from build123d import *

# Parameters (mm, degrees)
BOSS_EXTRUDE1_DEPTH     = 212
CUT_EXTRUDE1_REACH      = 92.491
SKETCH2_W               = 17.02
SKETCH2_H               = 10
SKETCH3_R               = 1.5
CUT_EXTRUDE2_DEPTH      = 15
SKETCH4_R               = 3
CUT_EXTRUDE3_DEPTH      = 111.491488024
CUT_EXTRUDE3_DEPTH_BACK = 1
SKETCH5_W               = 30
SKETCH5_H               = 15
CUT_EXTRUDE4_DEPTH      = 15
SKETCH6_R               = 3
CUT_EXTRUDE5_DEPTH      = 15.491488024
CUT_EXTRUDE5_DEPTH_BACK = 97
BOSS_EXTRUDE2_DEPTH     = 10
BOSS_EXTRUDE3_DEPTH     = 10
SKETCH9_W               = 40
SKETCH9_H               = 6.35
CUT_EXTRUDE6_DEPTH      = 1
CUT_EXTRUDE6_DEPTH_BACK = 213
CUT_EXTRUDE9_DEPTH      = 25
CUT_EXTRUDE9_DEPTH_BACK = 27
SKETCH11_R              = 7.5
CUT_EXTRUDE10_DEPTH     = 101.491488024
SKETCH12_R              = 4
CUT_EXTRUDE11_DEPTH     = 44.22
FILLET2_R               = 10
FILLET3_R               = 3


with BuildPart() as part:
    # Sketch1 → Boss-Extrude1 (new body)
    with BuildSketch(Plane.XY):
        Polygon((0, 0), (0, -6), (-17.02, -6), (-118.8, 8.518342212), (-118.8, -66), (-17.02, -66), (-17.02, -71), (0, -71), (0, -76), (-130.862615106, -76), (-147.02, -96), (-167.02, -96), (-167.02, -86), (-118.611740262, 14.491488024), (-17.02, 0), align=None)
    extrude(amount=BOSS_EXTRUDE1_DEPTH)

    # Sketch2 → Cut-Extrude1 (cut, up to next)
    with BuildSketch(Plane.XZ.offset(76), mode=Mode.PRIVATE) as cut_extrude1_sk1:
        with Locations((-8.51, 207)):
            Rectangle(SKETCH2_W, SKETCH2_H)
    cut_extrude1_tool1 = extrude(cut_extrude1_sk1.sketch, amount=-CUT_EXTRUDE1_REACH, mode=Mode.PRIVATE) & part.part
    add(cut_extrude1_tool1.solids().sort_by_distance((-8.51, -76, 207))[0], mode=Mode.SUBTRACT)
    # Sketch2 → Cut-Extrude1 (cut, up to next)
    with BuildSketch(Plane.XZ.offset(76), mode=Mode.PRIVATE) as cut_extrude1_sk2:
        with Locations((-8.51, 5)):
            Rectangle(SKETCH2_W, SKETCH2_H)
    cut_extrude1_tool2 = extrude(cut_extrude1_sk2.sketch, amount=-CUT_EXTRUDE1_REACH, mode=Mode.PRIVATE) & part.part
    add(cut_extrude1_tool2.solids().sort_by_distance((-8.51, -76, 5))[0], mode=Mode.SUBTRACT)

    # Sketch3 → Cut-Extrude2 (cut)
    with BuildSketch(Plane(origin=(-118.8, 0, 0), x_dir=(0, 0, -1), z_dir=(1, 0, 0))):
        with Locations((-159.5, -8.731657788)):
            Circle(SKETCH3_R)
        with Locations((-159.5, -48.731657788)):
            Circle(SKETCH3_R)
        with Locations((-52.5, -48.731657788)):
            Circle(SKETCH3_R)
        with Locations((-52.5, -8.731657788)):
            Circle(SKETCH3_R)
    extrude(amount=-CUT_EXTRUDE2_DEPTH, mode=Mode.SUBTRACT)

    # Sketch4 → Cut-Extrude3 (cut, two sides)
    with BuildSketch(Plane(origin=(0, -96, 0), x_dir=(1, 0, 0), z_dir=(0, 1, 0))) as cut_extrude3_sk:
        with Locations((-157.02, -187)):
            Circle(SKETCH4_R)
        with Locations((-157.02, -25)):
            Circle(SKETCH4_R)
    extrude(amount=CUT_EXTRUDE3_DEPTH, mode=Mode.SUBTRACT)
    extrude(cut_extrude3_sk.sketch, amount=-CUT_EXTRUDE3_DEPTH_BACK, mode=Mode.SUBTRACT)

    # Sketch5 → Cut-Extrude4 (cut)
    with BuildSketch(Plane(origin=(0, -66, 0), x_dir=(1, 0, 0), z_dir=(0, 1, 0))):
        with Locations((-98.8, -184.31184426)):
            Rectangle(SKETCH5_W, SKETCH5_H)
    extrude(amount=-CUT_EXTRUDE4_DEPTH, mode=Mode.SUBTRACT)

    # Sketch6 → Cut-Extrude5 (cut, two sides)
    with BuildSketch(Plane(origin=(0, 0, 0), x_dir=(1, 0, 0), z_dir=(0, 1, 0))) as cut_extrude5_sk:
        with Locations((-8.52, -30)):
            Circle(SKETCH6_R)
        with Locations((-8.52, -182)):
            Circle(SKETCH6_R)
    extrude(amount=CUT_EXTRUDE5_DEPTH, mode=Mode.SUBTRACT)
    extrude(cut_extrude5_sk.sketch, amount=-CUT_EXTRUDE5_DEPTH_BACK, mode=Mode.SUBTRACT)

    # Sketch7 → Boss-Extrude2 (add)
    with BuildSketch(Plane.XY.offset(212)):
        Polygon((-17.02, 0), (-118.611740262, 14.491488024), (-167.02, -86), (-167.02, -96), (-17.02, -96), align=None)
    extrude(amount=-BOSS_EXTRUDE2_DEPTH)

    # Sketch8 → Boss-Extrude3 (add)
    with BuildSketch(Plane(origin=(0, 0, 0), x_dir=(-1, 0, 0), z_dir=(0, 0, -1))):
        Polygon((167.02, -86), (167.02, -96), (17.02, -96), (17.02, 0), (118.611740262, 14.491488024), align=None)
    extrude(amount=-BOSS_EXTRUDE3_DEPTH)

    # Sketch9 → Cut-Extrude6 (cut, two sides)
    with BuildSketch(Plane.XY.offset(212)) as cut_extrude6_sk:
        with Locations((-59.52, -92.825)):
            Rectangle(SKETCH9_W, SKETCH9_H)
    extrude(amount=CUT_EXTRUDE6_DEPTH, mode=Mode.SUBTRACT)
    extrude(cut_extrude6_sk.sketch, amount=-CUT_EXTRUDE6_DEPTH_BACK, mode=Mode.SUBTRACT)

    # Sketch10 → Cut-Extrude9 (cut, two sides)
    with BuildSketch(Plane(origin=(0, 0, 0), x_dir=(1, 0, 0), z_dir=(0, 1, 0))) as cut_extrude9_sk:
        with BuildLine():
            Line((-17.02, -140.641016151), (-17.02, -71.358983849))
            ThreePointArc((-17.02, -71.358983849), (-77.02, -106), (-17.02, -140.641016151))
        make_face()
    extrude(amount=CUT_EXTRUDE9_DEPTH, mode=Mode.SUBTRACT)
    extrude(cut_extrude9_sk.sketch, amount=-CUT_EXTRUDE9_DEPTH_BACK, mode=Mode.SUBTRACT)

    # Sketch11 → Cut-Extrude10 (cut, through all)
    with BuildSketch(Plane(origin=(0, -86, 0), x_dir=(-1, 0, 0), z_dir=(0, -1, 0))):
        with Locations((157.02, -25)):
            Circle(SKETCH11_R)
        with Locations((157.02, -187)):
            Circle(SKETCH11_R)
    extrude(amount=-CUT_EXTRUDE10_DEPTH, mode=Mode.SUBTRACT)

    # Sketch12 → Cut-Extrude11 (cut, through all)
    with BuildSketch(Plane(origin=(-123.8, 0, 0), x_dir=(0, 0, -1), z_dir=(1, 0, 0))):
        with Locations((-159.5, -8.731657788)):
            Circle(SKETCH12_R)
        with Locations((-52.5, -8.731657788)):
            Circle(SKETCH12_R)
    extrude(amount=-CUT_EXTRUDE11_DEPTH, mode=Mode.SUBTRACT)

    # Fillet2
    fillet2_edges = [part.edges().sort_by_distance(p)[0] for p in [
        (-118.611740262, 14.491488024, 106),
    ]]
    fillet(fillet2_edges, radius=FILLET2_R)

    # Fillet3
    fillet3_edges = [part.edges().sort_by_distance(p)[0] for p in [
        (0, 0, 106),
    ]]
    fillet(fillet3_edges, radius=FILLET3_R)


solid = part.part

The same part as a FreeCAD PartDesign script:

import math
import FreeCAD as App
import Part
import Sketcher
Q = App.Units.Quantity


def edges_at(feature, points):
    """Names of the edges that pass closest to the given points."""
    edges = feature.Shape.Edges
    near = lambda p: min(range(len(edges)), key=lambda i: edges[i].distToShape(Part.Vertex(*p))[0])
    return sorted({f"Edge{near(p) + 1}" for p in points})

doc = App.newDocument("Part")
body = doc.addObject("PartDesign::Body", "Body")

# Sketch on XY plane
sketch1 = body.newObject("Sketcher::SketchObject", "Sketch")
sketch1.AttachmentSupport = (doc.getObject("XY_Plane"), [""])
sketch1.MapMode = "FlatFace"
sketch1.addGeometry([
    Part.LineSegment(App.Vector(0, -6, 0), App.Vector(0, 0, 0)),  # 0
    Part.LineSegment(App.Vector(0, 0, 0), App.Vector(-17, 0, 0)),  # 1
    Part.LineSegment(App.Vector(-17, 0, 0), App.Vector(-119, 14, 0)),  # 2
    Part.LineSegment(App.Vector(-119, 14, 0), App.Vector(-167, -86, 0)),  # 3
    Part.LineSegment(App.Vector(-167, -86, 0), App.Vector(-167, -96, 0)),  # 4
    Part.LineSegment(App.Vector(-167, -96, 0), App.Vector(-147, -96, 0)),  # 5
    Part.LineSegment(App.Vector(-147, -96, 0), App.Vector(-131, -76, 0)),  # 6
    Part.LineSegment(App.Vector(-131, -76, 0), App.Vector(0, -76, 0)),  # 7
    Part.LineSegment(App.Vector(0, -76, 0), App.Vector(0, -71, 0)),  # 8
    Part.LineSegment(App.Vector(0, -71, 0), App.Vector(-17, -71, 0)),  # 9
    Part.LineSegment(App.Vector(-17, -71, 0), App.Vector(-17, -66, 0)),  # 10
    Part.LineSegment(App.Vector(-17, -66, 0), App.Vector(-119, -66, 0)),  # 11
    Part.LineSegment(App.Vector(-119, -66, 0), App.Vector(-119, 9, 0)),  # 12
    Part.LineSegment(App.Vector(-119, 9, 0), App.Vector(-17, -6, 0)),  # 13
    Part.LineSegment(App.Vector(-17, -6, 0), App.Vector(0, -6, 0)),  # 14
], False)
sketch1.addConstraint([
    Sketcher.Constraint("Coincident", 0, 2, 1, 1),
    Sketcher.Constraint("Coincident", 1, 2, 2, 1),
    Sketcher.Constraint("Coincident", 2, 2, 3, 1),
    Sketcher.Constraint("Coincident", 3, 2, 4, 1),
    Sketcher.Constraint("Coincident", 4, 2, 5, 1),
    Sketcher.Constraint("Coincident", 5, 2, 6, 1),
    Sketcher.Constraint("Coincident", 6, 2, 7, 1),
    Sketcher.Constraint("Coincident", 7, 2, 8, 1),
    Sketcher.Constraint("Coincident", 8, 2, 9, 1),
    Sketcher.Constraint("Coincident", 9, 2, 10, 1),
    Sketcher.Constraint("Coincident", 10, 2, 11, 1),
    Sketcher.Constraint("Coincident", 11, 2, 12, 1),
    Sketcher.Constraint("Coincident", 12, 2, 13, 1),
    Sketcher.Constraint("Coincident", 13, 2, 14, 1),
    Sketcher.Constraint("Coincident", 14, 2, 0, 1),
    Sketcher.Constraint("Vertical", 0),
    Sketcher.Constraint("Horizontal", 1),
    Sketcher.Constraint("Vertical", 4),
    Sketcher.Constraint("Horizontal", 5),
    Sketcher.Constraint("Horizontal", 7),
    Sketcher.Constraint("Vertical", 8),
    Sketcher.Constraint("Horizontal", 9),
    Sketcher.Constraint("Vertical", 10),
    Sketcher.Constraint("Horizontal", 11),
    Sketcher.Constraint("Vertical", 12),
    Sketcher.Constraint("Horizontal", 14),
    Sketcher.Constraint("Coincident", 0, 2, -1, 1),
    Sketcher.Constraint("PointOnObject", 7, 2, -2),
    Sketcher.Constraint("Parallel", 2, 13),
    Sketcher.Constraint("Vertical", 1, 2, 9, 2),
    Sketcher.Constraint("Vertical", 10, 2, 13, 2),
    Sketcher.Constraint("Equal", 8, 10),
    Sketcher.Constraint("DistanceX", 5, 1, 5, 2, Q("20 mm")),
    Sketcher.Constraint("DistanceY", 0, 1, 0, 2, Q("6 mm")),
    Sketcher.Constraint("DistanceY", 4, 2, 4, 1, Q("10 mm")),
    Sketcher.Constraint("DistanceY", 8, 1, 8, 2, Q("5 mm")),
    Sketcher.Constraint("DistanceY", 3, 2, -1, 1, Q("86 mm")),
    Sketcher.Constraint("DistanceY", 6, 2, -1, 1, Q("76 mm")),
    Sketcher.Constraint("DistanceX", 3, 2, 1, 2, Q("150 mm")),
    Sketcher.Constraint("DistanceX", 1, 2, 1, 1, Q("17.02 mm")),
    Sketcher.Constraint("DistanceX", 11, 2, 11, 1, Q("101.78 mm")),
    Sketcher.Constraint("Distance", 2, Q("102.6201 mm")),
    Sketcher.Constraint("Distance", 3, Q("111.54326 mm")),
    Sketcher.Constraint("Distance", 6, Q("25.711108 mm")),
])
pad1 = body.newObject("PartDesign::Pad", "Pad")
pad1.Profile = sketch1
pad1.Length = 212

# Sketch on XZ plane
sketch2 = body.newObject("Sketcher::SketchObject", "Sketch001")
sketch2.AttachmentSupport = (doc.getObject("XZ_Plane"), [""])
sketch2.MapMode = "FlatFace"
sketch2.AttachmentOffset = App.Placement(App.Vector(0, 0, 76), App.Rotation())
sketch2.addGeometry([
    Part.LineSegment(App.Vector(-17, 212, 0), App.Vector(-17, 202, 0)),
    Part.LineSegment(App.Vector(-17, 202, 0), App.Vector(0, 202, 0)),
    Part.LineSegment(App.Vector(0, 202, 0), App.Vector(0, 212, 0)),
    Part.LineSegment(App.Vector(0, 212, 0), App.Vector(-17, 212, 0)),
], False)
sketch2.addConstraint([
    Sketcher.Constraint("Coincident", 0, 2, 1, 1),
    Sketcher.Constraint("Coincident", 1, 2, 2, 1),
    Sketcher.Constraint("Coincident", 2, 2, 3, 1),
    Sketcher.Constraint("Coincident", 3, 2, 0, 1),
    Sketcher.Constraint("Vertical", 0),
    Sketcher.Constraint("Horizontal", 1),
    Sketcher.Constraint("Vertical", 2),
    Sketcher.Constraint("Horizontal", 3),
    Sketcher.Constraint("PointOnObject", 1, 2, -2),
    Sketcher.Constraint("DistanceY", 0, 2, 0, 1, Q("10 mm")),
    Sketcher.Constraint("DistanceY", -1, 1, 0, 2, Q("202 mm")),
    Sketcher.Constraint("DistanceX", 1, 1, 1, 2, Q("17.02 mm")),
])
pocket1 = body.newObject("PartDesign::Pocket", "Pocket")
pocket1.Profile = sketch2
pocket1.Type = "UpToFirst"

# Sketch on XZ plane
sketch3 = body.newObject("Sketcher::SketchObject", "Sketch002")
sketch3.AttachmentSupport = (doc.getObject("XZ_Plane"), [""])
sketch3.MapMode = "FlatFace"
sketch3.AttachmentOffset = App.Placement(App.Vector(0, 0, 76), App.Rotation())
sketch3.addGeometry([
    Part.LineSegment(App.Vector(-17, 10, 0), App.Vector(-17, 0, 0)),
    Part.LineSegment(App.Vector(-17, 0, 0), App.Vector(0, 0, 0)),
    Part.LineSegment(App.Vector(0, 0, 0), App.Vector(0, 10, 0)),
    Part.LineSegment(App.Vector(0, 10, 0), App.Vector(-17, 10, 0)),
], False)
sketch3.addConstraint([
    Sketcher.Constraint("Coincident", 0, 2, 1, 1),
    Sketcher.Constraint("Coincident", 1, 2, 2, 1),
    Sketcher.Constraint("Coincident", 2, 2, 3, 1),
    Sketcher.Constraint("Coincident", 3, 2, 0, 1),
    Sketcher.Constraint("Vertical", 0),
    Sketcher.Constraint("Horizontal", 1),
    Sketcher.Constraint("Vertical", 2),
    Sketcher.Constraint("Horizontal", 3),
    Sketcher.Constraint("Coincident", 1, 2, -1, 1),
    Sketcher.Constraint("DistanceY", 0, 2, 0, 1, Q("10 mm")),
    Sketcher.Constraint("DistanceX", 1, 1, 1, 2, Q("17.02 mm")),
])
pocket2 = body.newObject("PartDesign::Pocket", "Pocket001")
pocket2.Profile = sketch3
pocket2.Type = "UpToFirst"

# Sketch on YZ plane
sketch4 = body.newObject("Sketcher::SketchObject", "Sketch003")
sketch4.AttachmentSupport = (doc.getObject("YZ_Plane"), [""])
sketch4.MapMode = "FlatFace"
sketch4.AttachmentOffset = App.Placement(App.Vector(0, 0, -118.8), App.Rotation())
sketch4.addGeometry([
    Part.Circle(App.Vector(-8.7, 159.5, 0), App.Vector(0, 0, 1), 1.5),
    Part.Circle(App.Vector(-48.7, 159.5, 0), App.Vector(0, 0, 1), 1.5),
    Part.Circle(App.Vector(-48.7, 52.5, 0), App.Vector(0, 0, 1), 1.5),
    Part.Circle(App.Vector(-8.7, 52.5, 0), App.Vector(0, 0, 1), 1.5),
], False)
sketch4.addConstraint([
    Sketcher.Constraint("Equal", 0, 1),
    Sketcher.Constraint("Equal", 1, 2),
    Sketcher.Constraint("Equal", 2, 3),
    Sketcher.Constraint("Horizontal", 0, 3, 1, 3),
    Sketcher.Constraint("Horizontal", 2, 3, 3, 3),
    Sketcher.Constraint("Vertical", 1, 3, 2, 3),
    Sketcher.Constraint("Vertical", 0, 3, 3, 3),
    Sketcher.Constraint("Diameter", 0, Q("3 mm")),
    Sketcher.Constraint("DistanceX", 1, 3, 0, 3, Q("40 mm")),
    Sketcher.Constraint("DistanceY", 2, 3, 1, 3, Q("107 mm")),
    Sketcher.Constraint("DistanceY", -1, 1, 0, 3, Q("159.5 mm")),
    Sketcher.Constraint("DistanceX", 0, 3, -1, 1, Q("8.731658 mm")),
])
pocket3 = body.newObject("PartDesign::Pocket", "Pocket002")
pocket3.Profile = sketch4
pocket3.Length = 15

# Sketch on XZ plane
sketch5 = body.newObject("Sketcher::SketchObject", "Sketch004")
sketch5.AttachmentSupport = (doc.getObject("XZ_Plane"), [""])
sketch5.MapMode = "FlatFace"
sketch5.AttachmentOffset = App.Placement(App.Vector(0, 0, 96), App.Rotation())
sketch5.addGeometry([
    Part.Circle(App.Vector(-157, 187, 0), App.Vector(0, 0, 1), 3),
    Part.Circle(App.Vector(-157, 25, 0), App.Vector(0, 0, 1), 3),
], False)
sketch5.addConstraint([
    Sketcher.Constraint("Equal", 0, 1),
    Sketcher.Constraint("Vertical", 0, 3, 1, 3),
    Sketcher.Constraint("Diameter", 0, Q("6 mm")),
    Sketcher.Constraint("DistanceY", -1, 1, 0, 3, Q("187 mm")),
    Sketcher.Constraint("DistanceY", -1, 1, 1, 3, Q("25 mm")),
    Sketcher.Constraint("DistanceX", 0, 3, -1, 1, Q("157.02 mm")),
])
pocket4 = body.newObject("PartDesign::Pocket", "Pocket003")
pocket4.Profile = sketch5
pocket4.Type = "ThroughAll"
pocket4.Midplane = True

# Sketch on XZ plane
sketch6 = body.newObject("Sketcher::SketchObject", "Sketch005")
sketch6.AttachmentSupport = (doc.getObject("XZ_Plane"), [""])
sketch6.MapMode = "FlatFace"
sketch6.AttachmentOffset = App.Placement(App.Vector(0, 0, 66), App.Rotation())
sketch6.addGeometry([
    Part.LineSegment(App.Vector(-114, 177, 0), App.Vector(-114, 192, 0)),
    Part.LineSegment(App.Vector(-114, 192, 0), App.Vector(-84, 192, 0)),
    Part.LineSegment(App.Vector(-84, 192, 0), App.Vector(-84, 177, 0)),
    Part.LineSegment(App.Vector(-84, 177, 0), App.Vector(-114, 177, 0)),
], False)
sketch6.addConstraint([
    Sketcher.Constraint("Coincident", 0, 2, 1, 1),
    Sketcher.Constraint("Coincident", 1, 2, 2, 1),
    Sketcher.Constraint("Coincident", 2, 2, 3, 1),
    Sketcher.Constraint("Coincident", 3, 2, 0, 1),
    Sketcher.Constraint("Vertical", 0),
    Sketcher.Constraint("Horizontal", 1),
    Sketcher.Constraint("Vertical", 2),
    Sketcher.Constraint("Horizontal", 3),
    Sketcher.Constraint("DistanceX", 1, 1, 1, 2, Q("30 mm")),
    Sketcher.Constraint("DistanceY", 0, 1, 0, 2, Q("15 mm")),
    Sketcher.Constraint("DistanceX", 0, 2, -1, 1, Q("113.8 mm")),
    Sketcher.Constraint("DistanceY", -1, 1, 0, 2, Q("191.811844 mm")),
])
pocket5 = body.newObject("PartDesign::Pocket", "Pocket004")
pocket5.Profile = sketch6
pocket5.Length = 15
pocket5.Reversed = True

# Sketch on XZ plane
sketch7 = body.newObject("Sketcher::SketchObject", "Sketch006")
sketch7.AttachmentSupport = (doc.getObject("XZ_Plane"), [""])
sketch7.MapMode = "FlatFace"
sketch7.addGeometry([
    Part.Circle(App.Vector(-8.5, 30, 0), App.Vector(0, 0, 1), 3),
    Part.Circle(App.Vector(-8.5, 182, 0), App.Vector(0, 0, 1), 3),
], False)
sketch7.addConstraint([
    Sketcher.Constraint("Equal", 0, 1),
    Sketcher.Constraint("Vertical", 0, 3, 1, 3),
    Sketcher.Constraint("Diameter", 0, Q("6 mm")),
    Sketcher.Constraint("DistanceY", -1, 1, 0, 3, Q("30 mm")),
    Sketcher.Constraint("DistanceY", -1, 1, 1, 3, Q("182 mm")),
    Sketcher.Constraint("DistanceX", 0, 3, -1, 1, Q("8.52 mm")),
])
pocket6 = body.newObject("PartDesign::Pocket", "Pocket005")
pocket6.Profile = sketch7
pocket6.Type = "ThroughAll"
pocket6.Midplane = True

# Sketch on XY plane
sketch8 = body.newObject("Sketcher::SketchObject", "Sketch007")
sketch8.AttachmentSupport = (doc.getObject("XY_Plane"), [""])
sketch8.MapMode = "FlatFace"
sketch8.AttachmentOffset = App.Placement(App.Vector(0, 0, 212), App.Rotation())
sketch8.addGeometry([
    Part.LineSegment(App.Vector(-17, 0, 0), App.Vector(-119, 14, 0)),  # 0
    Part.LineSegment(App.Vector(-119, 14, 0), App.Vector(-167, -86, 0)),  # 1
    Part.LineSegment(App.Vector(-167, -86, 0), App.Vector(-167, -96, 0)),  # 2
    Part.LineSegment(App.Vector(-167, -96, 0), App.Vector(-17, -96, 0)),  # 3
    Part.LineSegment(App.Vector(-17, -96, 0), App.Vector(-17, 0, 0)),  # 4
], False)
sketch8.addConstraint([
    Sketcher.Constraint("Coincident", 0, 2, 1, 1),
    Sketcher.Constraint("Coincident", 1, 2, 2, 1),
    Sketcher.Constraint("Coincident", 2, 2, 3, 1),
    Sketcher.Constraint("Coincident", 3, 2, 4, 1),
    Sketcher.Constraint("Coincident", 4, 2, 0, 1),
    Sketcher.Constraint("Vertical", 2),
    Sketcher.Constraint("Horizontal", 3),
    Sketcher.Constraint("Vertical", 4),
    Sketcher.Constraint("PointOnObject", 4, 2, -1),
    Sketcher.Constraint("DistanceX", 3, 1, 3, 2, Q("150 mm")),
    Sketcher.Constraint("DistanceY", 2, 2, 2, 1, Q("10 mm")),
    Sketcher.Constraint("DistanceY", 4, 1, 4, 2, Q("96 mm")),
    Sketcher.Constraint("DistanceX", 1, 2, -1, 1, Q("167.02 mm")),
    Sketcher.Constraint("Distance", 0, Q("102.6201 mm")),
    Sketcher.Constraint("Distance", 1, Q("111.54326 mm")),
])
pad2 = body.newObject("PartDesign::Pad", "Pad001")
pad2.Profile = sketch8
pad2.Length = 10
pad2.Reversed = True

# Sketch on XY plane
sketch9 = body.newObject("Sketcher::SketchObject", "Sketch008")
sketch9.AttachmentSupport = (doc.getObject("XY_Plane"), [""])
sketch9.MapMode = "FlatFace"
sketch9.addGeometry([
    Part.LineSegment(App.Vector(-167, -96, 0), App.Vector(-167, -86, 0)),  # 0
    Part.LineSegment(App.Vector(-167, -86, 0), App.Vector(-119, 14, 0)),  # 1
    Part.LineSegment(App.Vector(-119, 14, 0), App.Vector(-17, 0, 0)),  # 2
    Part.LineSegment(App.Vector(-17, 0, 0), App.Vector(-17, -96, 0)),  # 3
    Part.LineSegment(App.Vector(-17, -96, 0), App.Vector(-167, -96, 0)),  # 4
], False)
sketch9.addConstraint([
    Sketcher.Constraint("Coincident", 0, 2, 1, 1),
    Sketcher.Constraint("Coincident", 1, 2, 2, 1),
    Sketcher.Constraint("Coincident", 2, 2, 3, 1),
    Sketcher.Constraint("Coincident", 3, 2, 4, 1),
    Sketcher.Constraint("Coincident", 4, 2, 0, 1),
    Sketcher.Constraint("Vertical", 0),
    Sketcher.Constraint("Vertical", 3),
    Sketcher.Constraint("Horizontal", 4),
    Sketcher.Constraint("PointOnObject", 2, 2, -1),
    Sketcher.Constraint("DistanceX", 4, 2, 4, 1, Q("150 mm")),
    Sketcher.Constraint("DistanceY", 0, 1, 0, 2, Q("10 mm")),
    Sketcher.Constraint("DistanceY", 3, 2, 3, 1, Q("96 mm")),
    Sketcher.Constraint("DistanceX", 0, 2, -1, 1, Q("167.02 mm")),
    Sketcher.Constraint("Distance", 2, Q("102.6201 mm")),
    Sketcher.Constraint("Distance", 1, Q("111.54326 mm")),
])
pad3 = body.newObject("PartDesign::Pad", "Pad002")
pad3.Profile = sketch9
pad3.Length = 10

# Sketch on XY plane
sketch10 = body.newObject("Sketcher::SketchObject", "Sketch009")
sketch10.AttachmentSupport = (doc.getObject("XY_Plane"), [""])
sketch10.MapMode = "FlatFace"
sketch10.AttachmentOffset = App.Placement(App.Vector(0, 0, 212), App.Rotation())
sketch10.addGeometry([
    Part.LineSegment(App.Vector(-80, -90, 0), App.Vector(-80, -96, 0)),
    Part.LineSegment(App.Vector(-80, -96, 0), App.Vector(-40, -96, 0)),
    Part.LineSegment(App.Vector(-40, -96, 0), App.Vector(-40, -90, 0)),
    Part.LineSegment(App.Vector(-40, -90, 0), App.Vector(-80, -90, 0)),
], False)
sketch10.addConstraint([
    Sketcher.Constraint("Coincident", 0, 2, 1, 1),
    Sketcher.Constraint("Coincident", 1, 2, 2, 1),
    Sketcher.Constraint("Coincident", 2, 2, 3, 1),
    Sketcher.Constraint("Coincident", 3, 2, 0, 1),
    Sketcher.Constraint("Vertical", 0),
    Sketcher.Constraint("Horizontal", 1),
    Sketcher.Constraint("Vertical", 2),
    Sketcher.Constraint("Horizontal", 3),
    Sketcher.Constraint("DistanceX", 1, 1, 1, 2, Q("40 mm")),
    Sketcher.Constraint("DistanceY", 0, 2, -1, 1, Q("96 mm")),
    Sketcher.Constraint("DistanceY", 0, 2, 0, 1, Q("6.35 mm")),
    Sketcher.Constraint("DistanceX", 0, 2, -1, 1, Q("79.52 mm")),
])
pocket7 = body.newObject("PartDesign::Pocket", "Pocket006")
pocket7.Profile = sketch10
pocket7.Type = "ThroughAll"
pocket7.Midplane = True

# Sketch on XZ plane
sketch11 = body.newObject("Sketcher::SketchObject", "Sketch010")
sketch11.AttachmentSupport = (doc.getObject("XZ_Plane"), [""])
sketch11.MapMode = "FlatFace"
sketch11.addGeometry([
    Part.LineSegment(App.Vector(-17, 141, 0), App.Vector(-17, 71, 0)),
    Part.ArcOfCircle(Part.Circle(App.Vector(-37, 106, 0), App.Vector(0, 0, 1), 40), math.radians(60), math.radians(300)),
], False)
sketch11.addConstraint([
    Sketcher.Constraint("Coincident", 0, 1, 1, 1),
    Sketcher.Constraint("Coincident", 1, 2, 0, 2),
    Sketcher.Constraint("Vertical", 0),
    Sketcher.Constraint("Radius", 1, Q("40 mm")),
    Sketcher.Constraint("DistanceY", -1, 1, 1, 3, Q("106 mm")),
    Sketcher.Constraint("DistanceX", 1, 3, 0, 1, Q("20 mm")),
    Sketcher.Constraint("DistanceX", 1, 3, -1, 1, Q("37.02 mm")),
])
pocket8 = body.newObject("PartDesign::Pocket", "Pocket007")
pocket8.Profile = sketch11
pocket8.Type = "TwoLengths"
pocket8.Length = 25
pocket8.Length2 = 27

# Sketch on XZ plane
sketch12 = body.newObject("Sketcher::SketchObject", "Sketch011")
sketch12.AttachmentSupport = (doc.getObject("XZ_Plane"), [""])
sketch12.MapMode = "FlatFace"
sketch12.AttachmentOffset = App.Placement(App.Vector(0, 0, 86), App.Rotation())
sketch12.addGeometry([
    Part.Circle(App.Vector(-157, 25, 0), App.Vector(0, 0, 1), 8),
    Part.Circle(App.Vector(-157, 187, 0), App.Vector(0, 0, 1), 8),
], False)
sketch12.addConstraint([
    Sketcher.Constraint("Equal", 0, 1),
    Sketcher.Constraint("Vertical", 0, 3, 1, 3),
    Sketcher.Constraint("Diameter", 0, Q("15 mm")),
    Sketcher.Constraint("DistanceY", -1, 1, 0, 3, Q("25 mm")),
    Sketcher.Constraint("DistanceY", -1, 1, 1, 3, Q("187 mm")),
    Sketcher.Constraint("DistanceX", 0, 3, -1, 1, Q("157.02 mm")),
])
pocket9 = body.newObject("PartDesign::Pocket", "Pocket008")
pocket9.Profile = sketch12
pocket9.Type = "ThroughAll"

# Sketch on YZ plane
sketch13 = body.newObject("Sketcher::SketchObject", "Sketch012")
sketch13.AttachmentSupport = (doc.getObject("YZ_Plane"), [""])
sketch13.MapMode = "FlatFace"
sketch13.AttachmentOffset = App.Placement(App.Vector(0, 0, -123.8), App.Rotation())
sketch13.addGeometry([
    Part.Circle(App.Vector(-8.7, 159.5, 0), App.Vector(0, 0, 1), 4),
    Part.Circle(App.Vector(-8.7, 52.5, 0), App.Vector(0, 0, 1), 4),
], False)
sketch13.addConstraint([
    Sketcher.Constraint("Equal", 0, 1),
    Sketcher.Constraint("Vertical", 0, 3, 1, 3),
    Sketcher.Constraint("Diameter", 0, Q("8 mm")),
    Sketcher.Constraint("DistanceY", 1, 3, 0, 3, Q("107 mm")),
    Sketcher.Constraint("DistanceY", -1, 1, 0, 3, Q("159.5 mm")),
    Sketcher.Constraint("DistanceX", 0, 3, -1, 1, Q("8.731658 mm")),
])
pocket10 = body.newObject("PartDesign::Pocket", "Pocket009")
pocket10.Profile = sketch13
pocket10.Type = "ThroughAll"
doc.recompute()

fillet = body.newObject("PartDesign::Fillet", "Fillet")
fillet.Base = (pocket10, edges_at(pocket10, [(-118.612, 14.491, 106)]))
fillet.Radius = 10
doc.recompute()

fillet2 = body.newObject("PartDesign::Fillet", "Fillet001")
fillet2.Base = (fillet, edges_at(fillet, [(0, 0, 106)]))
fillet2.Radius = 3

doc.recompute()
